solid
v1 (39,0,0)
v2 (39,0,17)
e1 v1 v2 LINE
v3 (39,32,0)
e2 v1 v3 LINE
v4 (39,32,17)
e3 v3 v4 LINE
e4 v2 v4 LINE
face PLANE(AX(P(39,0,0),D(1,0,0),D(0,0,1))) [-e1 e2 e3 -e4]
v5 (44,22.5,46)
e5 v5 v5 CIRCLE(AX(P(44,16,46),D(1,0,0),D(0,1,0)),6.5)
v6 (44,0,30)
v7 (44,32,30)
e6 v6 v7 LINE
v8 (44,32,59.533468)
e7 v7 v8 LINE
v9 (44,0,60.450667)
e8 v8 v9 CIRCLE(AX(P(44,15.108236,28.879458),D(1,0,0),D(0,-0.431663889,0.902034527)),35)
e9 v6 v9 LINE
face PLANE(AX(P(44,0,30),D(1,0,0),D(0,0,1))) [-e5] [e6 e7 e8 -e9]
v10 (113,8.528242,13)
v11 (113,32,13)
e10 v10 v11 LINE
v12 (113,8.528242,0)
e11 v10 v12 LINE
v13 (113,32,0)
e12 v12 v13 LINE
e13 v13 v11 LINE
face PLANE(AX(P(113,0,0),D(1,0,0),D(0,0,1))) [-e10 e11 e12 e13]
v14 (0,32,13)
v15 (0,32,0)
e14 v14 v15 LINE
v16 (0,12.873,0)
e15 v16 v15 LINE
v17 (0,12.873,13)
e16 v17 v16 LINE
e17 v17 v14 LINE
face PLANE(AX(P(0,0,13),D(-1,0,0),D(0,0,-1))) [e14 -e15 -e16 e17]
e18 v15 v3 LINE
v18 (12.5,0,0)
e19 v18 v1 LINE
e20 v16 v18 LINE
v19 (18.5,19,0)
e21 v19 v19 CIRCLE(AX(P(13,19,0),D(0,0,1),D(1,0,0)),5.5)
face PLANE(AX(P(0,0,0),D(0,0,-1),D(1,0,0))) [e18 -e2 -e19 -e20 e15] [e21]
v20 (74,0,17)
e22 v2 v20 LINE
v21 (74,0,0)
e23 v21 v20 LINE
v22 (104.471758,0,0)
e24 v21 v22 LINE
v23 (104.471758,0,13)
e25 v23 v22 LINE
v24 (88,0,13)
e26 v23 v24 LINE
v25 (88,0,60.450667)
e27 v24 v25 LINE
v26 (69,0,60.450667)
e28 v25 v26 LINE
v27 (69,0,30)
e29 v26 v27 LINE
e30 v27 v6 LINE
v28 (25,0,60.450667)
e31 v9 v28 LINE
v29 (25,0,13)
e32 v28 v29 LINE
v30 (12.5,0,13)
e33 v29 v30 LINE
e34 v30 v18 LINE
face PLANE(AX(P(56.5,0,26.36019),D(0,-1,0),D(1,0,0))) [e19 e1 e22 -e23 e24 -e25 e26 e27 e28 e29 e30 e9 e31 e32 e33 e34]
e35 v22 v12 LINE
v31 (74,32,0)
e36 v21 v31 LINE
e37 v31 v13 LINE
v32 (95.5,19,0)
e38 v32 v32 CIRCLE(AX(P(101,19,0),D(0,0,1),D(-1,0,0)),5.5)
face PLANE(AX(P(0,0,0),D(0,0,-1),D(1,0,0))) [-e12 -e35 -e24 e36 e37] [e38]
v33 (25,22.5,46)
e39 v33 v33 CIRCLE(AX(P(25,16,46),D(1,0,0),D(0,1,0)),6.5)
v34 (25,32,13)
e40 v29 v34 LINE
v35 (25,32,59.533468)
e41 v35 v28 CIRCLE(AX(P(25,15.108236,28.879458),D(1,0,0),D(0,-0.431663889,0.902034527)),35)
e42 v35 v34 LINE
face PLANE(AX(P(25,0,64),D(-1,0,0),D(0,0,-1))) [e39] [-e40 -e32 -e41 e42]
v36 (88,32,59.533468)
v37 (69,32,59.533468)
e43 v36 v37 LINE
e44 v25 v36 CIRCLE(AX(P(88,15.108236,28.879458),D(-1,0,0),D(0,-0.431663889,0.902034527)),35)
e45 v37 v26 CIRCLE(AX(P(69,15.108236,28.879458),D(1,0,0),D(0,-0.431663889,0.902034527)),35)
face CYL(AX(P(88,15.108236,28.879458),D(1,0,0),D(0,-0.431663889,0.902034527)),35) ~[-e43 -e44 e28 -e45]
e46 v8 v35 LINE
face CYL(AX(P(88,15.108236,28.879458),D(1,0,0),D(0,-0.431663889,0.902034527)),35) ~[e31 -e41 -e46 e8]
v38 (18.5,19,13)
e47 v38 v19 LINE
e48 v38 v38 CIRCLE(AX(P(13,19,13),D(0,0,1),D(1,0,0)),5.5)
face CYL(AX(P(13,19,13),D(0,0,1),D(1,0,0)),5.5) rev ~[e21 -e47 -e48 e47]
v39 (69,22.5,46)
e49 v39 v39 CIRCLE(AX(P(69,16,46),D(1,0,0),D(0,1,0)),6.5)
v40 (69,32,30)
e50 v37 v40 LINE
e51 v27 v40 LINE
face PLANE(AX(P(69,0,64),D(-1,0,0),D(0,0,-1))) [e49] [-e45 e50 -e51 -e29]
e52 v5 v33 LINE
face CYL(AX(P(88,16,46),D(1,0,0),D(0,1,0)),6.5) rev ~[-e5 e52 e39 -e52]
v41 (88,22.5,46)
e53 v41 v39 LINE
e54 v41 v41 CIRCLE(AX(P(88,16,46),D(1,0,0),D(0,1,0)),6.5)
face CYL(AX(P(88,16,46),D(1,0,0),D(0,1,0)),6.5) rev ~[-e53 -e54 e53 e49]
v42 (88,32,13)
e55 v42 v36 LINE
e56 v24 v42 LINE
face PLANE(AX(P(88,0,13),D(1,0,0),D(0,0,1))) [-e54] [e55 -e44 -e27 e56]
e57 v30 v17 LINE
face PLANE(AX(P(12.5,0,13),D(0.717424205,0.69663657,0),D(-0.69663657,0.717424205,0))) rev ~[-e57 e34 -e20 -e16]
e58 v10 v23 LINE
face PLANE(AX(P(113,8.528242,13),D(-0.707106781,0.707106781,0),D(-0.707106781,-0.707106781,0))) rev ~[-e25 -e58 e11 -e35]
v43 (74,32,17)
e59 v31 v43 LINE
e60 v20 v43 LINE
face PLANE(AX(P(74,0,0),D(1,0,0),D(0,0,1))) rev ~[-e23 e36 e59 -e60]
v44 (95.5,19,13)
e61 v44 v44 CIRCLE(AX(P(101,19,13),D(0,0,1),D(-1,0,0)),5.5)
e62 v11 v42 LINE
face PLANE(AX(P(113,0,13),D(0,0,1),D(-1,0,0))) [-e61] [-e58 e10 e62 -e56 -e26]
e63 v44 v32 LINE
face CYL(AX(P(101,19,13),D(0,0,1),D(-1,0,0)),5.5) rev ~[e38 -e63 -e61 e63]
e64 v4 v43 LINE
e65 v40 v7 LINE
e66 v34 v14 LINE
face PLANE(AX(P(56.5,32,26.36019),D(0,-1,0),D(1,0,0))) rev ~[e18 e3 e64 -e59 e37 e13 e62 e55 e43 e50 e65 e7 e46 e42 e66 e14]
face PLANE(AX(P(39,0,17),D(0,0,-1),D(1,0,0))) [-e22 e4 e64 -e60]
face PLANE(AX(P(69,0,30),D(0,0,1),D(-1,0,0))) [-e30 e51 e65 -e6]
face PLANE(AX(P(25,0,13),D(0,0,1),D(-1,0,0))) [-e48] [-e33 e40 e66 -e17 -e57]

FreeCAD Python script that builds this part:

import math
import FreeCAD as App
import Part
import Sketcher

V = App.Vector

doc = App.newDocument("Part")
body = doc.addObject("PartDesign::Body", "Body")

sketch1 = body.newObject("Sketcher::SketchObject", "Sketch")
sketch1.AttachmentSupport = (doc.getObject("XZ_Plane"), [""])
sketch1.MapMode = "FlatFace"
sketch1.addGeometry(Part.LineSegment(V(0, 0, 0), V(113, 0, 0)), False)
sketch1.addGeometry(Part.LineSegment(V(113, 0, 0), V(113, 13, 0)), False)
sketch1.addGeometry(Part.LineSegment(V(113, 13, 0), V(88, 13, 0)), False)
sketch1.addGeometry(Part.LineSegment(V(88, 13, 0), V(88, 64, 0)), False)
sketch1.addGeometry(Part.LineSegment(V(88, 64, 0), V(69, 64, 0)), False)
sketch1.addGeometry(Part.LineSegment(V(69, 64, 0), V(69, 30, 0)), False)
sketch1.addGeometry(Part.LineSegment(V(69, 30, 0), V(44, 30, 0)), False)
sketch1.addGeometry(Part.LineSegment(V(44, 30, 0), V(44, 64, 0)), False)
sketch1.addGeometry(Part.LineSegment(V(44, 64, 0), V(25, 64, 0)), False)
sketch1.addGeometry(Part.LineSegment(V(25, 64, 0), V(25, 13, 0)), False)
sketch1.addGeometry(Part.LineSegment(V(25, 13, 0), V(0, 13, 0)), False)
sketch1.addGeometry(Part.LineSegment(V(0, 13, 0), V(0, 0, 0)), False)
sketch1.addConstraint(Sketcher.Constraint("Coincident", 0, 2, 1, 1))
sketch1.addConstraint(Sketcher.Constraint("Coincident", 1, 2, 2, 1))
sketch1.addConstraint(Sketcher.Constraint("Coincident", 2, 2, 3, 1))
sketch1.addConstraint(Sketcher.Constraint("Coincident", 3, 2, 4, 1))
sketch1.addConstraint(Sketcher.Constraint("Coincident", 4, 2, 5, 1))
sketch1.addConstraint(Sketcher.Constraint("Coincident", 5, 2, 6, 1))
sketch1.addConstraint(Sketcher.Constraint("Coincident", 6, 2, 7, 1))
sketch1.addConstraint(Sketcher.Constraint("Coincident", 7, 2, 8, 1))
sketch1.addConstraint(Sketcher.Constraint("Coincident", 8, 2, 9, 1))
sketch1.addConstraint(Sketcher.Constraint("Coincident", 9, 2, 10, 1))
sketch1.addConstraint(Sketcher.Constraint("Coincident", 10, 2, 11, 1))
sketch1.addConstraint(Sketcher.Constraint("Coincident", 11, 2, 0, 1))
sketch1.addConstraint(Sketcher.Constraint("Horizontal", 0))
sketch1.addConstraint(Sketcher.Constraint("Vertical", 1))
sketch1.addConstraint(Sketcher.Constraint("Horizontal", 2))
sketch1.addConstraint(Sketcher.Constraint("Vertical", 3))
sketch1.addConstraint(Sketcher.Constraint("Horizontal", 4))
sketch1.addConstraint(Sketcher.Constraint("Vertical", 5))
sketch1.addConstraint(Sketcher.Constraint("Horizontal", 6))
sketch1.addConstraint(Sketcher.Constraint("Vertical", 7))
sketch1.addConstraint(Sketcher.Constraint("Horizontal", 8))
sketch1.addConstraint(Sketcher.Constraint("Vertical", 9))
sketch1.addConstraint(Sketcher.Constraint("Horizontal", 10))
sketch1.addConstraint(Sketcher.Constraint("Vertical", 11))
sketch1.addConstraint(Sketcher.Constraint("Coincident", 11, 2, -1, 1))
sketch1.addConstraint(Sketcher.Constraint("Horizontal", 4, 2, 7, 2))
sketch1.addConstraint(Sketcher.Constraint("Horizontal", 2, 2, 9, 2))
sketch1.addConstraint(Sketcher.Constraint("Equal", 2, 6))
sketch1.addConstraint(Sketcher.Constraint("Equal", 4, 8))
sketch1.addConstraint(Sketcher.Constraint("Equal", 6, 10))
sketch1.addConstraint(Sketcher.Constraint("DistanceX", 0, 1, 0, 2, 113.0))
sketch1.addConstraint(Sketcher.Constraint("DistanceX", 2, 2, 2, 1, 25.0))
sketch1.addConstraint(Sketcher.Constraint("DistanceY", 1, 1, 1, 2, 13.0))
sketch1.addConstraint(Sketcher.Constraint("DistanceY", 3, 1, 3, 2, 51.0))
sketch1.addConstraint(Sketcher.Constraint("DistanceY", 5, 2, 5, 1, 34.0))
pad1 = body.newObject("PartDesign::Pad", "Pad")
pad1.Profile = sketch1
pad1.Length = 32
pad1.Reversed = True

sketch2 = body.newObject("Sketcher::SketchObject", "Sketch001")
sketch2.AttachmentSupport = (doc.getObject("XZ_Plane"), [""])
sketch2.MapMode = "FlatFace"
sketch2.addGeometry(Part.LineSegment(V(39, 17, 0), V(39, 0, 0)), False)
sketch2.addGeometry(Part.LineSegment(V(39, 0, 0), V(74, 0, 0)), False)
sketch2.addGeometry(Part.LineSegment(V(74, 0, 0), V(74, 17, 0)), False)
sketch2.addGeometry(Part.LineSegment(V(74, 17, 0), V(39, 17, 0)), False)
sketch2.addConstraint(Sketcher.Constraint("Coincident", 0, 2, 1, 1))
sketch2.addConstraint(Sketcher.Constraint("Coincident", 1, 2, 2, 1))
sketch2.addConstraint(Sketcher.Constraint("Coincident", 2, 2, 3, 1))
sketch2.addConstraint(Sketcher.Constraint("Coincident", 3, 2, 0, 1))
sketch2.addConstraint(Sketcher.Constraint("Vertical", 0))
sketch2.addConstraint(Sketcher.Constraint("Horizontal", 1))
sketch2.addConstraint(Sketcher.Constraint("Vertical", 2))
sketch2.addConstraint(Sketcher.Constraint("Horizontal", 3))
sketch2.addConstraint(Sketcher.Constraint("PointOnObject", 0, 2, -1))
sketch2.addConstraint(Sketcher.Constraint("DistanceX", 1, 1, 1, 2, 35.0))
sketch2.addConstraint(Sketcher.Constraint("DistanceY", 0, 2, 0, 1, 17.0))
sketch2.addConstraint(Sketcher.Constraint("DistanceX", -1, 1, 0, 2, 39.0))
pocket1 = body.newObject("PartDesign::Pocket", "Pocket")
pocket1.Profile = sketch2
pocket1.Length = 32

sketch3 = body.newObject("Sketcher::SketchObject", "Sketch002")
sketch3.AttachmentSupport = (doc.getObject("XY_Plane"), [""])
sketch3.MapMode = "FlatFace"
sketch3.AttachmentOffset = App.Placement(V(0, 0, 13), App.Rotation())
sketch3.addGeometry(Part.Circle(V(101, 19, 0), V(0, 0, 1), 6), False)
sketch3.addGeometry(Part.Circle(V(13, 19, 0), V(0, 0, 1), 6), False)
sketch3.addConstraint(Sketcher.Constraint("Equal", 0, 1))
sketch3.addConstraint(Sketcher.Constraint("Horizontal", 0, 3, 1, 3))
sketch3.addConstraint(Sketcher.Constraint("Diameter", 0, 11.0))
sketch3.addConstraint(Sketcher.Constraint("DistanceX", -1, 1, 0, 3, 101.0))
sketch3.addConstraint(Sketcher.Constraint("DistanceY", -1, 1, 0, 3, 19.0))
sketch3.addConstraint(Sketcher.Constraint("DistanceX", -1, 1, 1, 3, 13.0))
pocket2 = body.newObject("PartDesign::Pocket", "Pocket001")
pocket2.Profile = sketch3
pocket2.Length = 25

sketch4 = body.newObject("Sketcher::SketchObject", "Sketch003")
sketch4.AttachmentSupport = (doc.getObject("YZ_Plane"), [""])
sketch4.MapMode = "FlatFace"
sketch4.AttachmentOffset = App.Placement(V(0, 0, 88), App.Rotation())
sketch4.addGeometry(Part.Circle(V(16, 46, 0), V(0, 0, 1), 6), False)
sketch4.addConstraint(Sketcher.Constraint("Diameter", 0, 13.0))
sketch4.addConstraint(Sketcher.Constraint("DistanceX", -1, 1, 0, 3, 16.0))
sketch4.addConstraint(Sketcher.Constraint("DistanceY", -1, 1, 0, 3, 46.0))
pocket3 = body.newObject("PartDesign::Pocket", "Pocket002")
pocket3.Profile = sketch4
pocket3.Length = 80

sketch5 = body.newObject("Sketcher::SketchObject", "Sketch004")
sketch5.AttachmentSupport = (doc.getObject("YZ_Plane"), [""])
sketch5.MapMode = "FlatFace"
sketch5.AttachmentOffset = App.Placement(V(0, 0, 88), App.Rotation())
sketch5.addGeometry(Part.ArcOfCircle(Part.Circle(V(15.1, 28.9, 0), V(0, 0, 1), 35), math.radians(61), math.radians(116)), False)
sketch5.addGeometry(Part.LineSegment(V(32, 59.5, 0), V(32, 64, 0)), False)
sketch5.addGeometry(Part.LineSegment(V(32, 64, 0), V(0, 64, 0)), False)
sketch5.addGeometry(Part.LineSegment(V(0, 64, 0), V(0, 60.5, 0)), False)
sketch5.addConstraint(Sketcher.Constraint("Coincident", 0, 1, 1, 1))
sketch5.addConstraint(Sketcher.Constraint("Coincident", 1, 2, 2, 1))
sketch5.addConstraint(Sketcher.Constraint("Coincident", 2, 2, 3, 1))
sketch5.addConstraint(Sketcher.Constraint("Coincident", 3, 2, 0, 2))
sketch5.addConstraint(Sketcher.Constraint("Vertical", 1))
sketch5.addConstraint(Sketcher.Constraint("Horizontal", 2))
sketch5.addConstraint(Sketcher.Constraint("Vertical", 3))
sketch5.addConstraint(Sketcher.Constraint("PointOnObject", 2, 2, -2))
sketch5.addConstraint(Sketcher.Constraint("Radius", 0, 35.0))
sketch5.addConstraint(Sketcher.Constraint("DistanceX", 2, 2, 2, 1, 32.0))
sketch5.addConstraint(Sketcher.Constraint("DistanceY", -1, 1, 1, 2, 64.0))
sketch5.addConstraint(Sketcher.Constraint("DistanceY", 0, 1, 3, 2, 0.917199))
sketch5.addConstraint(Sketcher.Constraint("DistanceY", 1, 1, 1, 2, 4.466532))
pocket4 = body.newObject("PartDesign::Pocket", "Pocket003")
pocket4.Profile = sketch5
pocket4.Length = 80

sketch6 = body.newObject("Sketcher::SketchObject", "Sketch005")
sketch6.AttachmentSupport = (doc.getObject("XY_Plane"), [""])
sketch6.MapMode = "FlatFace"
sketch6.AttachmentOffset = App.Placement(V(0, 0, 13), App.Rotation())
sketch6.addGeometry(Part.LineSegment(V(104, 0, 0), V(113, 0, 0)), False)
sketch6.addGeometry(Part.LineSegment(V(113, 0, 0), V(113, 9, 0)), False)
sketch6.addGeometry(Part.LineSegment(V(113, 9, 0), V(104, 0, 0)), False)
sketch6.addConstraint(Sketcher.Constraint("Coincident", 0, 2, 1, 1))
sketch6.addConstraint(Sketcher.Constraint("Coincident", 1, 2, 2, 1))
sketch6.addConstraint(Sketcher.Constraint("Coincident", 2, 2, 0, 1))
sketch6.addConstraint(Sketcher.Constraint("Horizontal", 0))
sketch6.addConstraint(Sketcher.Constraint("Vertical", 1))
sketch6.addConstraint(Sketcher.Constraint("PointOnObject", 0, 2, -1))
sketch6.addConstraint(Sketcher.Constraint("Equal", 0, 1))
sketch6.addConstraint(Sketcher.Constraint("DistanceX", -1, 1, 0, 2, 113.0))
sketch6.addConstraint(Sketcher.Constraint("DistanceX", 0, 1, 0, 2, 8.528242))
pocket5 = body.newObject("PartDesign::Pocket", "Pocket004")
pocket5.Profile = sketch6
pocket5.Length = 25

sketch7 = body.newObject("Sketcher::SketchObject", "Sketch006")
sketch7.AttachmentSupport = (doc.getObject("XY_Plane"), [""])
sketch7.MapMode = "FlatFace"
sketch7.AttachmentOffset = App.Placement(V(0, 0, 13), App.Rotation())
sketch7.addGeometry(Part.LineSegment(V(0, 13, 0), V(0, 0, 0)), False)
sketch7.addGeometry(Part.LineSegment(V(0, 0, 0), V(12, 0, 0)), False)
sketch7.addGeometry(Part.LineSegment(V(12, 0, 0), V(0, 13, 0)), False)
sketch7.addConstraint(Sketcher.Constraint("Coincident", 0, 2, 1, 1))
sketch7.addConstraint(Sketcher.Constraint("Coincident", 1, 2, 2, 1))
sketch7.addConstraint(Sketcher.Constraint("Coincident", 2, 2, 0, 1))
sketch7.addConstraint(Sketcher.Constraint("Vertical", 0))
sketch7.addConstraint(Sketcher.Constraint("Horizontal", 1))
sketch7.addConstraint(Sketcher.Constraint("Coincident", 0, 2, -1, 1))
sketch7.addConstraint(Sketcher.Constraint("DistanceX", 1, 1, 1, 2, 12.5))
sketch7.addConstraint(Sketcher.Constraint("DistanceY", 0, 2, 0, 1, 12.873))
pocket6 = body.newObject("PartDesign::Pocket", "Pocket005")
pocket6.Profile = sketch7
pocket6.Length = 25

doc.recompute()
